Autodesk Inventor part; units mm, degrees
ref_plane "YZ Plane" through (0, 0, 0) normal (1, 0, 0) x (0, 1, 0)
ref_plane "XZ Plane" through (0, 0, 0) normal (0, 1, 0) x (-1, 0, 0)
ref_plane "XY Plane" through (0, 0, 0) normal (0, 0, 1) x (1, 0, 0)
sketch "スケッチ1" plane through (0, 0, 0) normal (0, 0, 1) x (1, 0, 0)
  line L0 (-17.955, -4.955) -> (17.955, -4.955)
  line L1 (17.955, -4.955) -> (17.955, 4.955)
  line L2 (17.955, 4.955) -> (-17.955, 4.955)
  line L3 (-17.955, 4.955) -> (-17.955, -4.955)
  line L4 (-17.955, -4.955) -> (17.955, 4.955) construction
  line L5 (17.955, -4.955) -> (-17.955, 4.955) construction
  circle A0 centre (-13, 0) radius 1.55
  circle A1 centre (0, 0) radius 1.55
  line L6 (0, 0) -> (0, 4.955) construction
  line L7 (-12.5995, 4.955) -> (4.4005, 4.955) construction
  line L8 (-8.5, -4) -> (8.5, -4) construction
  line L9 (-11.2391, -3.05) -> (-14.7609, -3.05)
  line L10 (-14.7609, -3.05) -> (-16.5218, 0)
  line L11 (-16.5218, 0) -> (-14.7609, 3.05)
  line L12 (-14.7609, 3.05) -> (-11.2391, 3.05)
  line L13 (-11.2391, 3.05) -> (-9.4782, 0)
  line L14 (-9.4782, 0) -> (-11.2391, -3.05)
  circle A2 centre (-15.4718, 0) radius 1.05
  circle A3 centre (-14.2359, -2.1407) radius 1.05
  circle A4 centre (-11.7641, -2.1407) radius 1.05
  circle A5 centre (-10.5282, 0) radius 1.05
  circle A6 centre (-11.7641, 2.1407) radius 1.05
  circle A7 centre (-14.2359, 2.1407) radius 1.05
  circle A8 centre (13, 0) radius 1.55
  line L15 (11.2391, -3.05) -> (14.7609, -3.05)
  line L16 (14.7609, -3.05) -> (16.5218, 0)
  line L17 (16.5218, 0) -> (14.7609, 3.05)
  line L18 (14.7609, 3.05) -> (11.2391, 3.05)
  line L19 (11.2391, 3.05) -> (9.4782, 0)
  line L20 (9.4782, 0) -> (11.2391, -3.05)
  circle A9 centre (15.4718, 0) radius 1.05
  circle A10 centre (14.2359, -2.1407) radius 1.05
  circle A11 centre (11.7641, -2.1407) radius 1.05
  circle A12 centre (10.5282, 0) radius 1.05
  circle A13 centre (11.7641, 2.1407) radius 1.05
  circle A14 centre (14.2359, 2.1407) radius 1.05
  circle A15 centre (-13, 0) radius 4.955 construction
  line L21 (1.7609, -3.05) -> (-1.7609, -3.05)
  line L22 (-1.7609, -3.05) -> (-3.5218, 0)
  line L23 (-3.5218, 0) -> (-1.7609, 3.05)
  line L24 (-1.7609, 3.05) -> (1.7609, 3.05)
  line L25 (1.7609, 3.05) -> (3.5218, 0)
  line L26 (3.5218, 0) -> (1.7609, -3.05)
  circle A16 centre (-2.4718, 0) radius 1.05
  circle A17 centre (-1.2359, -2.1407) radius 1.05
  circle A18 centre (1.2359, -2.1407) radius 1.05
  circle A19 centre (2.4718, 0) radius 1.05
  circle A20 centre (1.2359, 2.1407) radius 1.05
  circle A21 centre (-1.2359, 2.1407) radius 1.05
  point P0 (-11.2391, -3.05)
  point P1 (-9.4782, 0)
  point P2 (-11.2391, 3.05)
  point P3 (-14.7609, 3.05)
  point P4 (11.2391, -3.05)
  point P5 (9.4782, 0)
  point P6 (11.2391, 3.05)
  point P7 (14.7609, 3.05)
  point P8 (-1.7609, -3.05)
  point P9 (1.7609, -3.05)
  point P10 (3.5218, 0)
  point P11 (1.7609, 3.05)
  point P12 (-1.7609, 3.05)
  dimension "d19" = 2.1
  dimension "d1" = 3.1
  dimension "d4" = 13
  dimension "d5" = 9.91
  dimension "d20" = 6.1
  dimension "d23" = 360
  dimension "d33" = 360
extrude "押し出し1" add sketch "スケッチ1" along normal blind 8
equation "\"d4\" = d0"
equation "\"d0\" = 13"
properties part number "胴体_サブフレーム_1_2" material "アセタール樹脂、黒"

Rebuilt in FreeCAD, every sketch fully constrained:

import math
import FreeCAD as App
import Part
import Sketcher

V = App.Vector
Q = App.Units.Quantity


def add_polygon(sketch, points):
    """Adds a closed chain of lines whose ends are joined by coincident constraints."""
    first, n = sketch.GeometryCount, len(points)
    for a, b in zip(points, points[1:] + points[:1]):
        sketch.addGeometry(Part.LineSegment(App.Vector(*a, 0), App.Vector(*b, 0)), False)
    for i in range(n):
        sketch.addConstraint(Sketcher.Constraint("Coincident", first + i, 2, first + (i + 1) % n, 1))

doc = App.newDocument("Part")
body = doc.addObject("PartDesign::Body", "Body")

# Sketch on XY plane
sketch1 = body.newObject("Sketcher::SketchObject", "Sketch")
sketch1.AttachmentSupport = (doc.getObject("XY_Plane"), [""])
sketch1.MapMode = "FlatFace"
add_polygon(sketch1, [(-18, 5), (-18, -5), (18, -5), (18, 5)])  # lines 0-3
sketch1.addGeometry(Part.LineSegment(V(-10.7, 2.1, 0), V(-10, 0.9, 0)), False)  # 4
sketch1.addGeometry(Part.ArcOfCircle(Part.Circle(V(-10.5, 0, 0), V(0, 0, 1), 1.1), math.radians(-60), math.radians(60)), False)  # 5
sketch1.addGeometry(Part.LineSegment(V(-10, -0.9, 0), V(-10.7, -2.1, 0)), False)  # 6
sketch1.addGeometry(Part.ArcOfCircle(Part.Circle(V(-11.8, -2.1, 0), V(0, 0, 1), 1.1), math.radians(-120), math.radians(0)), False)  # 7
sketch1.addGeometry(Part.LineSegment(V(-12.3, -3, 0), V(-13.7, -3, 0)), False)  # 8
sketch1.addGeometry(Part.ArcOfCircle(Part.Circle(V(-14.2, -2.1, 0), V(0, 0, 1), 1.1), math.radians(180), math.radians(300)), False)  # 9
sketch1.addGeometry(Part.LineSegment(V(-15.3, -2.1, 0), V(-16, -0.9, 0)), False)  # 10
sketch1.addGeometry(Part.ArcOfCircle(Part.Circle(V(-15.5, 0, 0), V(0, 0, 1), 1.1), math.radians(120), math.radians(240)), False)  # 11
sketch1.addGeometry(Part.LineSegment(V(-16, 0.9, 0), V(-15.3, 2.1, 0)), False)  # 12
sketch1.addGeometry(Part.ArcOfCircle(Part.Circle(V(-14.2, 2.1, 0), V(0, 0, 1), 1.1), math.radians(60), math.radians(180)), False)  # 13
sketch1.addGeometry(Part.LineSegment(V(-13.7, 3, 0), V(-12.3, 3, 0)), False)  # 14
sketch1.addGeometry(Part.ArcOfCircle(Part.Circle(V(-11.8, 2.1, 0), V(0, 0, 1), 1.1), math.radians(0), math.radians(120)), False)  # 15
sketch1.addGeometry(Part.LineSegment(V(2.3, 2.1, 0), V(3, 0.9, 0)), False)  # 16
sketch1.addGeometry(Part.ArcOfCircle(Part.Circle(V(2.5, 0, 0), V(0, 0, 1), 1.1), math.radians(-60), math.radians(60)), False)  # 17
sketch1.addGeometry(Part.LineSegment(V(3, -0.9, 0), V(2.3, -2.1, 0)), False)  # 18
sketch1.addGeometry(Part.ArcOfCircle(Part.Circle(V(1.2, -2.1, 0), V(0, 0, 1), 1.1), math.radians(-120), math.radians(0)), False)  # 19
sketch1.addGeometry(Part.LineSegment(V(0.7, -3, 0), V(-0.7, -3, 0)), False)  # 20
sketch1.addGeometry(Part.ArcOfCircle(Part.Circle(V(-1.2, -2.1, 0), V(0, 0, 1), 1.1), math.radians(180), math.radians(300)), False)  # 21
sketch1.addGeometry(Part.LineSegment(V(-2.3, -2.1, 0), V(-3, -0.9, 0)), False)  # 22
sketch1.addGeometry(Part.ArcOfCircle(Part.Circle(V(-2.5, 0, 0), V(0, 0, 1), 1.1), math.radians(120), math.radians(240)), False)  # 23
sketch1.addGeometry(Part.LineSegment(V(-3, 0.9, 0), V(-2.3, 2.1, 0)), False)  # 24
sketch1.addGeometry(Part.ArcOfCircle(Part.Circle(V(-1.2, 2.1, 0), V(0, 0, 1), 1.1), math.radians(60), math.radians(180)), False)  # 25
sketch1.addGeometry(Part.LineSegment(V(-0.7, 3, 0), V(0.7, 3, 0)), False)  # 26
sketch1.addGeometry(Part.ArcOfCircle(Part.Circle(V(1.2, 2.1, 0), V(0, 0, 1), 1.1), math.radians(0), math.radians(120)), False)  # 27
sketch1.addGeometry(Part.LineSegment(V(15.3, 2.1, 0), V(16, 0.9, 0)), False)  # 28
sketch1.addGeometry(Part.ArcOfCircle(Part.Circle(V(15.5, 0, 0), V(0, 0, 1), 1.1), math.radians(-60), math.radians(60)), False)  # 29
sketch1.addGeometry(Part.LineSegment(V(16, -0.9, 0), V(15.3, -2.1, 0)), False)  # 30
sketch1.addGeometry(Part.ArcOfCircle(Part.Circle(V(14.2, -2.1, 0), V(0, 0, 1), 1.1), math.radians(-120), math.radians(0)), False)  # 31
sketch1.addGeometry(Part.LineSegment(V(13.7, -3, 0), V(12.3, -3, 0)), False)  # 32
sketch1.addGeometry(Part.ArcOfCircle(Part.Circle(V(11.8, -2.1, 0), V(0, 0, 1), 1.1), math.radians(180), math.radians(300)), False)  # 33
sketch1.addGeometry(Part.LineSegment(V(10.7, -2.1, 0), V(10, -0.9, 0)), False)  # 34
sketch1.addGeometry(Part.ArcOfCircle(Part.Circle(V(10.5, 0, 0), V(0, 0, 1), 1.1), math.radians(120), math.radians(240)), False)  # 35
sketch1.addGeometry(Part.LineSegment(V(10, 0.9, 0), V(10.7, 2.1, 0)), False)  # 36
sketch1.addGeometry(Part.ArcOfCircle(Part.Circle(V(11.8, 2.1, 0), V(0, 0, 1), 1.1), math.radians(60), math.radians(180)), False)  # 37
sketch1.addGeometry(Part.LineSegment(V(12.3, 3, 0), V(13.7, 3, 0)), False)  # 38
sketch1.addGeometry(Part.ArcOfCircle(Part.Circle(V(14.2, 2.1, 0), V(0, 0, 1), 1.1), math.radians(0), math.radians(120)), False)  # 39
sketch1.addConstraint(Sketcher.Constraint("Coincident", 4, 2, 5, 2))
sketch1.addConstraint(Sketcher.Constraint("Coincident", 5, 1, 6, 1))
sketch1.addConstraint(Sketcher.Constraint("Coincident", 6, 2, 7, 2))
sketch1.addConstraint(Sketcher.Constraint("Coincident", 7, 1, 8, 1))
sketch1.addConstraint(Sketcher.Constraint("Coincident", 8, 2, 9, 2))
sketch1.addConstraint(Sketcher.Constraint("Coincident", 9, 1, 10, 1))
sketch1.addConstraint(Sketcher.Constraint("Coincident", 10, 2, 11, 2))
sketch1.addConstraint(Sketcher.Constraint("Coincident", 11, 1, 12, 1))
sketch1.addConstraint(Sketcher.Constraint("Coincident", 12, 2, 13, 2))
sketch1.addConstraint(Sketcher.Constraint("Coincident", 13, 1, 14, 1))
sketch1.addConstraint(Sketcher.Constraint("Coincident", 14, 2, 15, 2))
sketch1.addConstraint(Sketcher.Constraint("Coincident", 15, 1, 4, 1))
sketch1.addConstraint(Sketcher.Constraint("Coincident", 16, 2, 17, 2))
sketch1.addConstraint(Sketcher.Constraint("Coincident", 17, 1, 18, 1))
sketch1.addConstraint(Sketcher.Constraint("Coincident", 18, 2, 19, 2))
sketch1.addConstraint(Sketcher.Constraint("Coincident", 19, 1, 20, 1))
sketch1.addConstraint(Sketcher.Constraint("Coincident", 20, 2, 21, 2))
sketch1.addConstraint(Sketcher.Constraint("Coincident", 21, 1, 22, 1))
sketch1.addConstraint(Sketcher.Constraint("Coincident", 22, 2, 23, 2))
sketch1.addConstraint(Sketcher.Constraint("Coincident", 23, 1, 24, 1))
sketch1.addConstraint(Sketcher.Constraint("Coincident", 24, 2, 25, 2))
sketch1.addConstraint(Sketcher.Constraint("Coincident", 25, 1, 26, 1))
sketch1.addConstraint(Sketcher.Constraint("Coincident", 26, 2, 27, 2))
sketch1.addConstraint(Sketcher.Constraint("Coincident", 27, 1, 16, 1))
sketch1.addConstraint(Sketcher.Constraint("Coincident", 28, 2, 29, 2))
sketch1.addConstraint(Sketcher.Constraint("Coincident", 29, 1, 30, 1))
sketch1.addConstraint(Sketcher.Constraint("Coincident", 30, 2, 31, 2))
sketch1.addConstraint(Sketcher.Constraint("Coincident", 31, 1, 32, 1))
sketch1.addConstraint(Sketcher.Constraint("Coincident", 32, 2, 33, 2))
sketch1.addConstraint(Sketcher.Constraint("Coincident", 33, 1, 34, 1))
sketch1.addConstraint(Sketcher.Constraint("Coincident", 34, 2, 35, 2))
sketch1.addConstraint(Sketcher.Constraint("Coincident", 35, 1, 36, 1))
sketch1.addConstraint(Sketcher.Constraint("Coincident", 36, 2, 37, 2))
sketch1.addConstraint(Sketcher.Constraint("Coincident", 37, 1, 38, 1))
sketch1.addConstraint(Sketcher.Constraint("Coincident", 38, 2, 39, 2))
sketch1.addConstraint(Sketcher.Constraint("Coincident", 39, 1, 28, 1))
sketch1.addConstraint(Sketcher.Constraint("Vertical", 0))
sketch1.addConstraint(Sketcher.Constraint("Horizontal", 1))
sketch1.addConstraint(Sketcher.Constraint("Vertical", 2))
sketch1.addConstraint(Sketcher.Constraint("Horizontal", 3))
sketch1.addConstraint(Sketcher.Constraint("Horizontal", 8))
sketch1.addConstraint(Sketcher.Constraint("Horizontal", 14))
sketch1.addConstraint(Sketcher.Constraint("Horizontal", 20))
sketch1.addConstraint(Sketcher.Constraint("Horizontal", 26))
sketch1.addConstraint(Sketcher.Constraint("Horizontal", 32))
sketch1.addConstraint(Sketcher.Constraint("Horizontal", 38))
sketch1.addConstraint(Sketcher.Constraint("Equal", 5, 7))
sketch1.addConstraint(Sketcher.Constraint("Equal", 7, 9))
sketch1.addConstraint(Sketcher.Constraint("Equal", 9, 11))
sketch1.addConstraint(Sketcher.Constraint("Equal", 11, 13))
sketch1.addConstraint(Sketcher.Constraint("Equal", 13, 15))
sketch1.addConstraint(Sketcher.Constraint("Equal", 15, 17))
sketch1.addConstraint(Sketcher.Constraint("Equal", 17, 19))
sketch1.addConstraint(Sketcher.Constraint("Equal", 19, 21))
sketch1.addConstraint(Sketcher.Constraint("Equal", 21, 23))
sketch1.addConstraint(Sketcher.Constraint("Equal", 23, 25))
sketch1.addConstraint(Sketcher.Constraint("Equal", 25, 27))
sketch1.addConstraint(Sketcher.Constraint("Equal", 27, 29))
sketch1.addConstraint(Sketcher.Constraint("Equal", 29, 31))
sketch1.addConstraint(Sketcher.Constraint("Equal", 31, 33))
sketch1.addConstraint(Sketcher.Constraint("Equal", 33, 35))
sketch1.addConstraint(Sketcher.Constraint("Equal", 35, 37))
sketch1.addConstraint(Sketcher.Constraint("Equal", 37, 39))
sketch1.addConstraint(Sketcher.Constraint("Symmetric", 17, 3, 23, 3, -1, 1))
sketch1.addConstraint(Sketcher.Constraint("Symmetric", 19, 3, 25, 3, -1, 1))
sketch1.addConstraint(Sketcher.Constraint("Symmetric", 21, 3, 27, 3, -1, 1))
sketch1.addConstraint(Sketcher.Constraint("Symmetric", 11, 3, 29, 3, -1, 1))
sketch1.addConstraint(Sketcher.Constraint("Symmetric", 13, 3, 31, 3, -1, 1))
sketch1.addConstraint(Sketcher.Constraint("Symmetric", 15, 3, 33, 3, -1, 1))
sketch1.addConstraint(Sketcher.Constraint("Symmetric", 5, 3, 35, 3, -1, 1))
sketch1.addConstraint(Sketcher.Constraint("Symmetric", 7, 3, 37, 3, -1, 1))
sketch1.addConstraint(Sketcher.Constraint("Symmetric", 9, 3, 39, 3, -1, 1))
sketch1.addConstraint(Sketcher.Constraint("Symmetric", 0, 2, 2, 2, -1, 1))
sketch1.addConstraint(Sketcher.Constraint("Symmetric", 19, 3, 21, 3, -2))
sketch1.addConstraint(Sketcher.Constraint("Symmetric", 9, 3, 31, 3, -2))
sketch1.addConstraint(Sketcher.Constraint("Symmetric", 7, 3, 33, 3, -2))
sketch1.addConstraint(Sketcher.Constraint("Symmetric", 17, 1, 22, 2, -2))
sketch1.addConstraint(Sketcher.Constraint("Symmetric", 11, 1, 28, 2, -2))
sketch1.addConstraint(Sketcher.Constraint("Symmetric", 5, 1, 34, 2, -2))
sketch1.addConstraint(Sketcher.Constraint("Parallel", 4, 10))
sketch1.addConstraint(Sketcher.Constraint("Parallel", 6, 12))
sketch1.addConstraint(Sketcher.Constraint("Parallel", 10, 16))
sketch1.addConstraint(Sketcher.Constraint("Parallel", 12, 18))
sketch1.addConstraint(Sketcher.Constraint("Parallel", 16, 22))
sketch1.addConstraint(Sketcher.Constraint("Parallel", 18, 24))
sketch1.addConstraint(Sketcher.Constraint("Parallel", 22, 28))
sketch1.addConstraint(Sketcher.Constraint("Parallel", 24, 30))
sketch1.addConstraint(Sketcher.Constraint("Parallel", 28, 34))
sketch1.addConstraint(Sketcher.Constraint("Parallel", 30, 36))
sketch1.addConstraint(Sketcher.Constraint("Horizontal", 7, 3, 9, 3))
sketch1.addConstraint(Sketcher.Constraint("Horizontal", 9, 3, 19, 3))
sketch1.addConstraint(Sketcher.Constraint("Horizontal", 33, 3, 6, 2))
sketch1.addConstraint(Sketcher.Constraint("Horizontal", 6, 2, 9, 1))
sketch1.addConstraint(Sketcher.Constraint("Horizontal", 5, 1, 10, 2))
sketch1.addConstraint(Sketcher.Constraint("Horizontal", 4, 2, 11, 1))
sketch1.addConstraint(Sketcher.Constraint("Horizontal", 39, 3, 12, 2))
sketch1.addConstraint(Sketcher.Constraint("Horizontal", 12, 2, 15, 1))
sketch1.addConstraint(Sketcher.Constraint("Horizontal", 11, 1, 16, 2))
sketch1.addConstraint(Sketcher.Constraint("Horizontal", 10, 2, 17, 1))
sketch1.addConstraint(Sketcher.Constraint("Horizontal", 9, 1, 18, 2))
sketch1.addConstraint(Sketcher.Constraint("Horizontal", 8, 2, 19, 1))
sketch1.addConstraint(Sketcher.Constraint("Horizontal", 16, 2, 23, 1))
sketch1.addConstraint(Sketcher.Constraint("Horizontal", 14, 2, 25, 1))
sketch1.addConstraint(Sketcher.Constraint("Horizontal", 22, 2, 29, 1))
sketch1.addConstraint(Sketcher.Constraint("Horizontal", 20, 2, 31, 1))
sketch1.addConstraint(Sketcher.Constraint("Horizontal", 28, 2, 35, 1))
sketch1.addConstraint(Sketcher.Constraint("Horizontal", 26, 2, 37, 1))
sketch1.addConstraint(Sketcher.Constraint("Vertical", 8, 2, 13, 1))
sketch1.addConstraint(Sketcher.Constraint("Equal", 14, 20))
sketch1.addConstraint(Sketcher.Constraint("Radius", 5, 1.05))
sketch1.addConstraint(Sketcher.Constraint("DistanceX", 5, 3, 17, 3, 13.0))
sketch1.addConstraint(Sketcher.Constraint("DistanceY", 0, 2, 0, 1, 9.91))
sketch1.addConstraint(Sketcher.Constraint("Angle", 4, Q("-60.0003 deg")))
sketch1.addConstraint(Sketcher.Constraint("DistanceX", 1, 1, 1, 2, 35.91))
sketch1.addConstraint(Sketcher.Constraint("DistanceY", 7, 1, -1, 1, 3.05))
sketch1.addConstraint(Sketcher.Constraint("DistanceY", 7, 3, 4, 2, 3.05))
sketch1.addConstraint(Sketcher.Constraint("DistanceX", 8, 2, 8, 1, 1.4217))
sketch1.addConstraint(Sketcher.Constraint("DistanceX", 7, 3, -1, 1, 11.764))
pad1 = body.newObject("PartDesign::Pad", "Pad")
pad1.Profile = sketch1
pad1.Length = 8

doc.recompute()
